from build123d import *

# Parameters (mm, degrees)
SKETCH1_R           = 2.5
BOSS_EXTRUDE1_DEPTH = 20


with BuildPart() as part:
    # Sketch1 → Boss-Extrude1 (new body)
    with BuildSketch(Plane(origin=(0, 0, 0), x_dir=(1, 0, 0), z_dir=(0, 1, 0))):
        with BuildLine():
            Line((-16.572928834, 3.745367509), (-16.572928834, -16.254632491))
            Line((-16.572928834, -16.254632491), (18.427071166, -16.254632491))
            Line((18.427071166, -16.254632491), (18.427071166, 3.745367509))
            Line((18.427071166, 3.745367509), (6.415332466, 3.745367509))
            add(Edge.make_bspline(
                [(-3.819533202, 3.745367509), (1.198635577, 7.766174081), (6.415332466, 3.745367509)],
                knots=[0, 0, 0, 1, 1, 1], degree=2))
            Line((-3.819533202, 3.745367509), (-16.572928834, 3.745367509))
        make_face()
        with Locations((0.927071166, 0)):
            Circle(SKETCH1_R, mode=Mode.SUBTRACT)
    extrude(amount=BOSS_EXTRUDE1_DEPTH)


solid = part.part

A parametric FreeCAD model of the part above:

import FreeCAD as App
import Part
import Sketcher
Q = App.Units.Quantity

doc = App.newDocument("Part")
body = doc.addObject("PartDesign::Body", "Body")

sketch1 = body.newObject("Sketcher::SketchObject", "Sketch")
sketch1.AttachmentSupport = (doc.getObject("XZ_Plane"), [""])
sketch1.MapMode = "FlatFace"
sketch1.addGeometry([
    Part.LineSegment(App.Vector(-16.572929, -3.745368, 0), App.Vector(-16.572929, 16.254632, 0)),
    Part.LineSegment(App.Vector(-16.572929, 16.254632, 0), App.Vector(18.427071, 16.254632, 0)),
    Part.LineSegment(App.Vector(18.427071, 16.254632, 0), App.Vector(18.427071, -3.745368, 0)),
    Part.LineSegment(App.Vector(18.427071, -3.745368, 0), App.Vector(6.415332, -3.745368, 0)),
    Part.BSplineCurve([App.Vector(-3.819533, -3.745368, 0), App.Vector(1.198636, -7.766174, 0), App.Vector(6.415332, -3.745368, 0)], [3, 3], [0, 1], False, 2, [1, 1, 1], False),
    Part.LineSegment(App.Vector(-3.819533, -3.745368, 0), App.Vector(-16.572929, -3.745368, 0)),
    Part.Circle(App.Vector(0.927071, 0, 0), App.Vector(0, 0, 1), 2.5),
], False)
sketch1.addConstraint([
    Sketcher.Constraint("Block", 4),
    Sketcher.Constraint("Coincident", 0, 2, 1, 1),
    Sketcher.Constraint("Coincident", 1, 2, 2, 1),
    Sketcher.Constraint("Coincident", 2, 2, 3, 1),
    Sketcher.Constraint("Coincident", 3, 2, 4, 2),
    Sketcher.Constraint("Coincident", 4, 1, 5, 1),
    Sketcher.Constraint("Coincident", 5, 2, 0, 1),
    Sketcher.Constraint("Vertical", 0),
    Sketcher.Constraint("Horizontal", 1),
    Sketcher.Constraint("Vertical", 2),
    Sketcher.Constraint("Horizontal", 3),
    Sketcher.Constraint("Horizontal", 5),
    Sketcher.Constraint("PointOnObject", 6, 3, -1),
    Sketcher.Constraint("Diameter", 6, Q("5 mm")),
    Sketcher.Constraint("DistanceX", 1, 1, 1, 2, Q("35 mm")),
    Sketcher.Constraint("DistanceY", 0, 1, 0, 2, Q("20 mm")),
    Sketcher.Constraint("DistanceX", 0, 2, 6, 3, Q("17.5 mm")),
    Sketcher.Constraint("DistanceX", 3, 2, 3, 1, Q("12.011739 mm")),
])
pad1 = body.newObject("PartDesign::Pad", "Pad")
pad1.Profile = sketch1
pad1.Length = 20
pad1.Reversed = True

doc.recompute()
